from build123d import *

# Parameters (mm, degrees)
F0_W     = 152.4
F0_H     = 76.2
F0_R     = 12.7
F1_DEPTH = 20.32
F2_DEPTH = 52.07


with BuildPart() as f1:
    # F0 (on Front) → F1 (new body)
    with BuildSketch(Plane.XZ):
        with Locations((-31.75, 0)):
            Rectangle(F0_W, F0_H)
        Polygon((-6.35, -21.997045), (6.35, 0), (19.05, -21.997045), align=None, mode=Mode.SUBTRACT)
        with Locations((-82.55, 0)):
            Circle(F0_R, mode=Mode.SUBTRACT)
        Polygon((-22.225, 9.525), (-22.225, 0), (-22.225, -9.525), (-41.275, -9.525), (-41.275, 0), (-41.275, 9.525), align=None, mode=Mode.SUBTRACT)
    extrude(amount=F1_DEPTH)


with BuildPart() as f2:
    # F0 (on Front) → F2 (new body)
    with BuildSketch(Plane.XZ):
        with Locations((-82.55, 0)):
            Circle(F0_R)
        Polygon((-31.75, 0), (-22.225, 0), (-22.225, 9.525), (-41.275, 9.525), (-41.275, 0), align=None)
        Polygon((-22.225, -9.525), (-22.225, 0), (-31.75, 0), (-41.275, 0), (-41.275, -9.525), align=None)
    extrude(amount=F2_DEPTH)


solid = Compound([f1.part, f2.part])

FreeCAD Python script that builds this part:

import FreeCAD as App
import Part
import Sketcher
Q = App.Units.Quantity


def add_polygon(sketch, points):
    """Adds a closed chain of lines whose ends are joined by coincident constraints."""
    first, n = sketch.GeometryCount, len(points)
    for a, b in zip(points, points[1:] + points[:1]):
        sketch.addGeometry(Part.LineSegment(App.Vector(*a, 0), App.Vector(*b, 0)), False)
    for i in range(n):
        sketch.addConstraint(Sketcher.Constraint("Coincident", first + i, 2, first + (i + 1) % n, 1))

doc = App.newDocument("Part")
body = doc.addObject("PartDesign::Body", "Body")

sketch1 = body.newObject("Sketcher::SketchObject", "Sketch")
sketch1.AttachmentSupport = (doc.getObject("XZ_Plane"), [""])
sketch1.MapMode = "FlatFace"
add_polygon(sketch1, [(-108, 38), (-108, -38), (44, -38), (44, 38)])
add_polygon(sketch1, [(19, -22), (-6, -22), (6, 0)])
sketch1.addGeometry(Part.Circle(App.Vector(-83, 0, 0), App.Vector(0, 0, 1), 13), False)
add_polygon(sketch1, [(-41, 10), (-22, 10), (-22, -10), (-41, -10)])
sketch1.addConstraint([
    Sketcher.Constraint("Vertical", 0),
    Sketcher.Constraint("Horizontal", 1),
    Sketcher.Constraint("Vertical", 2),
    Sketcher.Constraint("Horizontal", 3),
    Sketcher.Constraint("Horizontal", 4),
    Sketcher.Constraint("Horizontal", 8),
    Sketcher.Constraint("Vertical", 9),
    Sketcher.Constraint("Horizontal", 10),
    Sketcher.Constraint("Vertical", 11),
    Sketcher.Constraint("PointOnObject", 7, 3, -1),
    Sketcher.Constraint("PointOnObject", 5, 2, -1),
    Sketcher.Constraint("Equal", 10, 9),
    Sketcher.Constraint("Equal", 5, 6),
    Sketcher.Constraint("Diameter", 7, Q("1 in")),
    Sketcher.Constraint("DistanceX", 1, 1, 1, 2, Q("6 in")),
    Sketcher.Constraint("DistanceX", 4, 2, 4, 1, Q("1 in")),
    Sketcher.Constraint("DistanceY", 0, 2, 0, 1, Q("3 in")),
    Sketcher.Constraint("Distance", 5, Q("1 in")),
    Sketcher.Constraint("DistanceX", 0, 2, 7, 3, Q("1 in")),
    Sketcher.Constraint("DistanceX", 4, 2, 1, 2, Q("2 in")),
    Sketcher.Constraint("DistanceX", 8, 1, 8, 2, Q("0.75 in")),
    Sketcher.Constraint("DistanceY", 0, 2, -1, 1, Q("1.5 in")),
    Sketcher.Constraint("DistanceX", 7, 3, -1, 1, Q("3.25 in")),
    Sketcher.Constraint("DistanceX", 8, 2, -1, 1, Q("0.875 in")),
    Sketcher.Constraint("DistanceY", -1, 1, 8, 2, Q("0.375 in")),
])
pad1 = body.newObject("PartDesign::Pad", "Pad")
pad1.Profile = sketch1
pad1.Length = Q("0.8 in")
body2 = doc.addObject("PartDesign::Body", "Body001")
body2.AllowCompound = True

sketch2 = body2.newObject("Sketcher::SketchObject", "Sketch001")
sketch2.AttachmentSupport = (doc.getObject("XZ_Plane001"), [""])
sketch2.MapMode = "FlatFace"
sketch2.addGeometry(Part.Circle(App.Vector(-83, 0, 0), App.Vector(0, 0, 1), 13), False)
add_polygon(sketch2, [(-22, 10), (-41, 10), (-41, -10), (-22, -10)])
sketch2.addConstraint([
    Sketcher.Constraint("Horizontal", 1),
    Sketcher.Constraint("Vertical", 2),
    Sketcher.Constraint("Horizontal", 3),
    Sketcher.Constraint("Vertical", 4),
    Sketcher.Constraint("PointOnObject", 0, 3, -1),
    Sketcher.Constraint("Equal", 3, 2),
    Sketcher.Constraint("Diameter", 0, Q("1 in")),
    Sketcher.Constraint("DistanceX", 1, 2, 1, 1, Q("0.75 in")),
    Sketcher.Constraint("DistanceX", 0, 3, -1, 1, Q("3.25 in")),
    Sketcher.Constraint("DistanceX", 1, 2, -1, 1, Q("1.625 in")),
    Sketcher.Constraint("DistanceY", -1, 1, 1, 2, Q("0.375 in")),
])
pad2 = body2.newObject("PartDesign::Pad", "Pad001")
pad2.Profile = sketch2
pad2.Length = Q("2.05 in")

doc.recompute()
